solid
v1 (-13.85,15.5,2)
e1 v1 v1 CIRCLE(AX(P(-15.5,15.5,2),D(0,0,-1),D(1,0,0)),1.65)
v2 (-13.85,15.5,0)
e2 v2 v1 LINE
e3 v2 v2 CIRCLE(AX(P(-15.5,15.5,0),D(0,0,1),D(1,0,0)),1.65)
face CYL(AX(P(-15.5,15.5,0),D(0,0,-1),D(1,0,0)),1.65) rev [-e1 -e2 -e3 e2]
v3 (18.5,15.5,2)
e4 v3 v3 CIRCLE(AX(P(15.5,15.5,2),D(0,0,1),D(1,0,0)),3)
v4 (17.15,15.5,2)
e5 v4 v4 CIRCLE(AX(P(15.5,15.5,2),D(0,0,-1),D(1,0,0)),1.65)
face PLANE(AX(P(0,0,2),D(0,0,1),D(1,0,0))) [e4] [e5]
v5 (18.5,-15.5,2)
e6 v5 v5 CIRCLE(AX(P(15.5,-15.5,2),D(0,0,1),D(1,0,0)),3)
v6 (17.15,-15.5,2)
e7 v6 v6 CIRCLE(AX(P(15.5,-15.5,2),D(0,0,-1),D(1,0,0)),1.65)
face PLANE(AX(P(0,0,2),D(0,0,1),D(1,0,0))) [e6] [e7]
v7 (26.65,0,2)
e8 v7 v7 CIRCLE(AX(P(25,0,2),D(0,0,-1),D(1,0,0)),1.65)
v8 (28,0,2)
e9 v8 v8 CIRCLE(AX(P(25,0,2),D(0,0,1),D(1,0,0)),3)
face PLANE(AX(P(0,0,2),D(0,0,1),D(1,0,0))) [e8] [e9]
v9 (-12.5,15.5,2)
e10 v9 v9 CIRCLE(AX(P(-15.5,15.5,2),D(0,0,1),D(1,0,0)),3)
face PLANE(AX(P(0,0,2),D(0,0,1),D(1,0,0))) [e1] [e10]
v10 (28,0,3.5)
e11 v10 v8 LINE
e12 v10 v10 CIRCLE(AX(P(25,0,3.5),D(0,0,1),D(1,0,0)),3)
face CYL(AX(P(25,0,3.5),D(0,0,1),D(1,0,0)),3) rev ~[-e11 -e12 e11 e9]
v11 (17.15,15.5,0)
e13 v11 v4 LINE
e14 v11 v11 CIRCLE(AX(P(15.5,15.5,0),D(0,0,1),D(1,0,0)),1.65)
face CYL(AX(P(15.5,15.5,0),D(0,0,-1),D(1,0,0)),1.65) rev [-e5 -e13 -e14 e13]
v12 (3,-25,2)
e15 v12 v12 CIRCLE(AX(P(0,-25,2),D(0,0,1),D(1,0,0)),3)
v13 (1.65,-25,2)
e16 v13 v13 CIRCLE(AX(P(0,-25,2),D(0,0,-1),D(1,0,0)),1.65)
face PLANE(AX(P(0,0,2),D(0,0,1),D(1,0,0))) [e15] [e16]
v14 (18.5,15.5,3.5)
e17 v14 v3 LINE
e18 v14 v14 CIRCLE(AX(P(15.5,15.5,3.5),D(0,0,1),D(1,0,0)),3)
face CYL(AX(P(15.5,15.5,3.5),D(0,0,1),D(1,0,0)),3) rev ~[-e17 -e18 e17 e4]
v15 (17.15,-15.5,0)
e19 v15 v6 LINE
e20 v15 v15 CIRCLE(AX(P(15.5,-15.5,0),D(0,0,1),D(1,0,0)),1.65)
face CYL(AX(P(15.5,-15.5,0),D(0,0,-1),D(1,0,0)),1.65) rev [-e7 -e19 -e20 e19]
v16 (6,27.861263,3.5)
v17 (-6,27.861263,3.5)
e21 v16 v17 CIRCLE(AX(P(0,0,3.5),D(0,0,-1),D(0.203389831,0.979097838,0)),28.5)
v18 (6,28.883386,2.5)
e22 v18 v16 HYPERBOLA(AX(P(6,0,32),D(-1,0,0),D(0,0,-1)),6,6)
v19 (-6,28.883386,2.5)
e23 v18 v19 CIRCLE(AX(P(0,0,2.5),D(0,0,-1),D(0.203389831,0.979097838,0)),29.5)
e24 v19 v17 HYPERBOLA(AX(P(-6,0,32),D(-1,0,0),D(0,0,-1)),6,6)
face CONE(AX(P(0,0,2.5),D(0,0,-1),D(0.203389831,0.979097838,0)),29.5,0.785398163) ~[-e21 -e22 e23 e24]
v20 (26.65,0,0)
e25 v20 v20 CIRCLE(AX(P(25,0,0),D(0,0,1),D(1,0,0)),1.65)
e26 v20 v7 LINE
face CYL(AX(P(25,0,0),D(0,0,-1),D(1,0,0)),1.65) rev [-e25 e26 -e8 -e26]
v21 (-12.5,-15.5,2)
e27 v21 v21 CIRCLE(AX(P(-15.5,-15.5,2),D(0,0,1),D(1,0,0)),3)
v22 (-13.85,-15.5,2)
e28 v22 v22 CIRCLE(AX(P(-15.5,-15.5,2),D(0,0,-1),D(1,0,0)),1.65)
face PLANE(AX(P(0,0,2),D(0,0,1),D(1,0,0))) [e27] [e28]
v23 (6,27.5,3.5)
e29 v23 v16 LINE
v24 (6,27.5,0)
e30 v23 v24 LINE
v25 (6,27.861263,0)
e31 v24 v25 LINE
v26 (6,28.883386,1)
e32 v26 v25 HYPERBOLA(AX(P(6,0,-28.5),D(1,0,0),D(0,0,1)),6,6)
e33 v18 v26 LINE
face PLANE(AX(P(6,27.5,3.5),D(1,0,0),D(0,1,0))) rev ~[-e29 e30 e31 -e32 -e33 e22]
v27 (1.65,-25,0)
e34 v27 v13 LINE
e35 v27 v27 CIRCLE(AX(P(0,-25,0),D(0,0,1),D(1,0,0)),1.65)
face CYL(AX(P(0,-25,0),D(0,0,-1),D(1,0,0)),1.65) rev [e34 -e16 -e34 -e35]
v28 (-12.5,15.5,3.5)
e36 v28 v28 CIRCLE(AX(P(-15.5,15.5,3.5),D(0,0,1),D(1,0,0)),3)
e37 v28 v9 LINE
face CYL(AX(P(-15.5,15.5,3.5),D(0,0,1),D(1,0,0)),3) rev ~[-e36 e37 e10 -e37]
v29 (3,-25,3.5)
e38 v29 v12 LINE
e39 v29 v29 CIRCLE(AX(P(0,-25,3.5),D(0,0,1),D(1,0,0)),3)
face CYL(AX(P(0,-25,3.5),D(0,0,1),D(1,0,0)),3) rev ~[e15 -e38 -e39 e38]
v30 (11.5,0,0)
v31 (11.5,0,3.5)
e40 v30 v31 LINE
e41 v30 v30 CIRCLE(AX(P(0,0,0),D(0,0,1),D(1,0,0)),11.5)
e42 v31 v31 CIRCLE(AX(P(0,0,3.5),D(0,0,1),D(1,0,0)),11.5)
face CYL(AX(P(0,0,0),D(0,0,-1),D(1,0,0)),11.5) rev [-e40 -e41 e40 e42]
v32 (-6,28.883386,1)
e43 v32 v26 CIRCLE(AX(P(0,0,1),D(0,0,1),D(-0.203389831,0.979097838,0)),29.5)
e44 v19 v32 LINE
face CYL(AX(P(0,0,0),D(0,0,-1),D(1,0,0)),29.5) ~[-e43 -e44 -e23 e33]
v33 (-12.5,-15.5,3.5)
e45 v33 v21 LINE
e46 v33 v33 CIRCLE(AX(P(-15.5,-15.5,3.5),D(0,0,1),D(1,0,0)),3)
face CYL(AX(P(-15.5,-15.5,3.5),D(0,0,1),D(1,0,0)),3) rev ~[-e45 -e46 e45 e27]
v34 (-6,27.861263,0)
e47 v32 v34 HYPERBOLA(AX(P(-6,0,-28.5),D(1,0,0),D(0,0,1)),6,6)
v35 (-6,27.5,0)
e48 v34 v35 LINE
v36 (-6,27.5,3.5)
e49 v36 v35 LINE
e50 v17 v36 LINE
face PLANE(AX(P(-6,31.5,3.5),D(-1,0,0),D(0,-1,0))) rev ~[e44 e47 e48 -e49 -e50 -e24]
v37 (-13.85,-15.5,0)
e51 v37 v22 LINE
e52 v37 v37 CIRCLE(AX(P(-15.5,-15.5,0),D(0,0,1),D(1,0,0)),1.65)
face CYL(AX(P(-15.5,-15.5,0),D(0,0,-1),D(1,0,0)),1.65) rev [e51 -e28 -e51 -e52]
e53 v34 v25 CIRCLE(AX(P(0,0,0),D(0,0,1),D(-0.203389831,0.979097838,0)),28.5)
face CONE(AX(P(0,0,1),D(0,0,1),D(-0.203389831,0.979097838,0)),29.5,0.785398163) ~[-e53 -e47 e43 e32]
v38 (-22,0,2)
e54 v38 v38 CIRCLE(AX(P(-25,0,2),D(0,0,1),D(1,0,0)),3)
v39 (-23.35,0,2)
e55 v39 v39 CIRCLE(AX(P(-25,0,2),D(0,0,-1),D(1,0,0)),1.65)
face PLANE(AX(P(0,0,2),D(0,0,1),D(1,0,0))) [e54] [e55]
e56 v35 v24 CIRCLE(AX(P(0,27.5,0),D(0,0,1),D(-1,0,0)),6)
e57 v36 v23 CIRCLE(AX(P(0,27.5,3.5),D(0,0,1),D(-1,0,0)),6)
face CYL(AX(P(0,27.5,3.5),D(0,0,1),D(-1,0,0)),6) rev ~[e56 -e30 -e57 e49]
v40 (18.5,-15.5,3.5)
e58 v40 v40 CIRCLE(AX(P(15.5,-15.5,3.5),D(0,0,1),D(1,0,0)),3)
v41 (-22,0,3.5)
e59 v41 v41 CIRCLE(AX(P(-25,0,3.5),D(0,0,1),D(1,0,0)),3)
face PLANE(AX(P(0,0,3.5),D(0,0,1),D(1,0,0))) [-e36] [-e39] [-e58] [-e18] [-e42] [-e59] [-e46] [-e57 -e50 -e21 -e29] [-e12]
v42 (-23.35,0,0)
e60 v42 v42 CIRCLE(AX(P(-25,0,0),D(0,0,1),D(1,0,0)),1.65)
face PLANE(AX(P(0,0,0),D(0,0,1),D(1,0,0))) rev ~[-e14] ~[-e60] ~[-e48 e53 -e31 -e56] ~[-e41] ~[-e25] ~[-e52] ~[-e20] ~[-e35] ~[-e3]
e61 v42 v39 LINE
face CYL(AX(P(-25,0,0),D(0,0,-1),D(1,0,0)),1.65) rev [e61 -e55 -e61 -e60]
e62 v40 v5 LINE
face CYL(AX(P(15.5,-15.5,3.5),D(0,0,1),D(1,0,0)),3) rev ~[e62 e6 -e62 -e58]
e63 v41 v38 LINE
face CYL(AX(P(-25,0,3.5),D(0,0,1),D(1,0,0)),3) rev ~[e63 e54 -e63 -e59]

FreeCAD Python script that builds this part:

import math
import FreeCAD as App
import Part
import Sketcher

V = App.Vector


def edges_at(feature, points):
    """Names of the edges that pass closest to the given points."""
    edges = feature.Shape.Edges
    near = lambda p: min(range(len(edges)), key=lambda i: edges[i].distToShape(Part.Vertex(*p))[0])
    return sorted({f"Edge{near(p) + 1}" for p in points})

doc = App.newDocument("Part")
body = doc.addObject("PartDesign::Body", "Body")

# Sketch on XY plane
sketch1 = body.newObject("Sketcher::SketchObject", "Sketch")
sketch1.AttachmentSupport = (doc.getObject("XY_Plane"), [""])
sketch1.MapMode = "FlatFace"
sketch1.addGeometry([
    Part.Circle(V(0, 0, 0), V(0, 0, 1), 29.5),  # 0
    Part.Circle(V(-15.5, -15.5, 0), V(0, 0, 1), 1.6),  # 1
    Part.Circle(V(0, -25, 0), V(0, 0, 1), 1.6),  # 2
    Part.Circle(V(15.5, -15.5, 0), V(0, 0, 1), 1.6),  # 3
    Part.Circle(V(-25, 0, 0), V(0, 0, 1), 1.6),  # 4
    Part.Circle(V(-15.5, 15.5, 0), V(0, 0, 1), 1.6),  # 5
    Part.Circle(V(0, 0, 0), V(0, 0, 1), 11.5),  # 6
    Part.Circle(V(25, 0, 0), V(0, 0, 1), 1.6),  # 7
    Part.Circle(V(15.5, 15.5, 0), V(0, 0, 1), 1.6),  # 8
], False)
sketch1.addConstraint([
    Sketcher.Constraint("Coincident", 0, 3, -1, 1),
    Sketcher.Constraint("Coincident", 6, 3, -1, 1),
    Sketcher.Constraint("Equal", 1, 2),
    Sketcher.Constraint("Equal", 2, 3),
    Sketcher.Constraint("Equal", 3, 4),
    Sketcher.Constraint("Equal", 4, 5),
    Sketcher.Constraint("Equal", 5, 7),
    Sketcher.Constraint("Equal", 7, 8),
    Sketcher.Constraint("Symmetric", 3, 3, 5, 3, -1, 1),
    Sketcher.Constraint("Symmetric", 4, 3, 7, 3, -1, 1),
    Sketcher.Constraint("Symmetric", 1, 3, 8, 3, -1, 1),
    Sketcher.Constraint("Symmetric", 1, 3, 3, 3, -2),
    Sketcher.Constraint("PointOnObject", 2, 3, -2),
    Sketcher.Constraint("PointOnObject", 4, 3, -1),
    Sketcher.Constraint("Diameter", 0, 59.0),
    Sketcher.Constraint("Diameter", 6, 23.0),
    Sketcher.Constraint("Diameter", 1, 3.3),
    Sketcher.Constraint("DistanceX", 1, 3, 3, 3, 31.0),
    Sketcher.Constraint("DistanceY", 1, 3, 5, 3, 31.0),
    Sketcher.Constraint("DistanceY", 2, 3, -1, 1, 25.0),
    Sketcher.Constraint("DistanceX", 4, 3, -1, 1, 25.0),
])
pad1 = body.newObject("PartDesign::Pad", "Pad")
pad1.Profile = sketch1
pad1.Length = 3.5

# Sketch on XY plane
sketch2 = body.newObject("Sketcher::SketchObject", "Sketch001")
sketch2.AttachmentSupport = (doc.getObject("XY_Plane"), [""])
sketch2.MapMode = "FlatFace"
sketch2.AttachmentOffset = App.Placement(V(0, 0, 3.5), App.Rotation())
sketch2.addGeometry([
    Part.Circle(V(0, -25, 0), V(0, 0, 1), 3),  # 0
    Part.Circle(V(25, 0, 0), V(0, 0, 1), 3),  # 1
    Part.Circle(V(-25, 0, 0), V(0, 0, 1), 3),  # 2
    Part.Circle(V(-15.5, -15.5, 0), V(0, 0, 1), 3),  # 3
    Part.Circle(V(15.5, -15.5, 0), V(0, 0, 1), 3),  # 4
    Part.Circle(V(15.5, 15.5, 0), V(0, 0, 1), 3),  # 5
    Part.Circle(V(-15.5, 15.5, 0), V(0, 0, 1), 3),  # 6
], False)
sketch2.addConstraint([
    Sketcher.Constraint("Equal", 0, 1),
    Sketcher.Constraint("Equal", 1, 2),
    Sketcher.Constraint("Equal", 2, 3),
    Sketcher.Constraint("Equal", 3, 4),
    Sketcher.Constraint("Equal", 4, 5),
    Sketcher.Constraint("Equal", 5, 6),
    Sketcher.Constraint("Symmetric", 1, 3, 2, 3, -1, 1),
    Sketcher.Constraint("Symmetric", 3, 3, 5, 3, -1, 1),
    Sketcher.Constraint("Symmetric", 4, 3, 6, 3, -1, 1),
    Sketcher.Constraint("Symmetric", 3, 3, 4, 3, -2),
    Sketcher.Constraint("PointOnObject", 0, 3, -2),
    Sketcher.Constraint("PointOnObject", 1, 3, -1),
    Sketcher.Constraint("Diameter", 0, 6.0),
    Sketcher.Constraint("DistanceY", 0, 3, -1, 1, 25.0),
    Sketcher.Constraint("DistanceX", -1, 1, 1, 3, 25.0),
    Sketcher.Constraint("DistanceX", 3, 3, 4, 3, 31.0),
    Sketcher.Constraint("DistanceY", 4, 3, 5, 3, 31.0),
])
pocket1 = body.newObject("PartDesign::Pocket", "Pocket")
pocket1.Profile = sketch2
pocket1.Length = 1.5

# Sketch on XY plane
sketch3 = body.newObject("Sketcher::SketchObject", "Sketch002")
sketch3.AttachmentSupport = (doc.getObject("XY_Plane"), [""])
sketch3.MapMode = "FlatFace"
sketch3.AttachmentOffset = App.Placement(V(0, 0, 3.5), App.Rotation())
sketch3.addGeometry([
    Part.ArcOfCircle(Part.Circle(V(0, 31.5, 0), V(0, 0, 1), 6), math.radians(0), math.radians(180)),
    Part.LineSegment(V(-6, 31.5, 0), V(-6, 27.5, 0)),
    Part.ArcOfCircle(Part.Circle(V(0, 27.5, 0), V(0, 0, 1), 6), math.radians(180), math.radians(360)),
    Part.LineSegment(V(6, 27.5, 0), V(6, 31.5, 0)),
], False)
sketch3.addConstraint([
    Sketcher.Constraint("Tangent", 0, 2, 1, 1),
    Sketcher.Constraint("Tangent", 1, 2, 2, 1),
    Sketcher.Constraint("Tangent", 2, 2, 3, 1),
    Sketcher.Constraint("Tangent", 3, 2, 0, 1),
    Sketcher.Constraint("Vertical", 1),
    Sketcher.Constraint("Vertical", 3),
    Sketcher.Constraint("PointOnObject", 0, 3, -2),
    Sketcher.Constraint("Radius", 0, 6.0),
    Sketcher.Constraint("DistanceY", 1, 2, 1, 1, 4.0),
    Sketcher.Constraint("DistanceY", -1, 1, 0, 3, 31.5),
])
pocket2 = body.newObject("PartDesign::Pocket", "Pocket001")
pocket2.Profile = sketch3
pocket2.Type = "ThroughAll"
doc.recompute()

chamfer = body.newObject("PartDesign::Chamfer", "Chamfer")
chamfer.Base = (pocket2, edges_at(pocket2, [(0, -29.5, 3.5), (0, -29.5, 0)]))
chamfer.Size = 1

doc.recompute()
